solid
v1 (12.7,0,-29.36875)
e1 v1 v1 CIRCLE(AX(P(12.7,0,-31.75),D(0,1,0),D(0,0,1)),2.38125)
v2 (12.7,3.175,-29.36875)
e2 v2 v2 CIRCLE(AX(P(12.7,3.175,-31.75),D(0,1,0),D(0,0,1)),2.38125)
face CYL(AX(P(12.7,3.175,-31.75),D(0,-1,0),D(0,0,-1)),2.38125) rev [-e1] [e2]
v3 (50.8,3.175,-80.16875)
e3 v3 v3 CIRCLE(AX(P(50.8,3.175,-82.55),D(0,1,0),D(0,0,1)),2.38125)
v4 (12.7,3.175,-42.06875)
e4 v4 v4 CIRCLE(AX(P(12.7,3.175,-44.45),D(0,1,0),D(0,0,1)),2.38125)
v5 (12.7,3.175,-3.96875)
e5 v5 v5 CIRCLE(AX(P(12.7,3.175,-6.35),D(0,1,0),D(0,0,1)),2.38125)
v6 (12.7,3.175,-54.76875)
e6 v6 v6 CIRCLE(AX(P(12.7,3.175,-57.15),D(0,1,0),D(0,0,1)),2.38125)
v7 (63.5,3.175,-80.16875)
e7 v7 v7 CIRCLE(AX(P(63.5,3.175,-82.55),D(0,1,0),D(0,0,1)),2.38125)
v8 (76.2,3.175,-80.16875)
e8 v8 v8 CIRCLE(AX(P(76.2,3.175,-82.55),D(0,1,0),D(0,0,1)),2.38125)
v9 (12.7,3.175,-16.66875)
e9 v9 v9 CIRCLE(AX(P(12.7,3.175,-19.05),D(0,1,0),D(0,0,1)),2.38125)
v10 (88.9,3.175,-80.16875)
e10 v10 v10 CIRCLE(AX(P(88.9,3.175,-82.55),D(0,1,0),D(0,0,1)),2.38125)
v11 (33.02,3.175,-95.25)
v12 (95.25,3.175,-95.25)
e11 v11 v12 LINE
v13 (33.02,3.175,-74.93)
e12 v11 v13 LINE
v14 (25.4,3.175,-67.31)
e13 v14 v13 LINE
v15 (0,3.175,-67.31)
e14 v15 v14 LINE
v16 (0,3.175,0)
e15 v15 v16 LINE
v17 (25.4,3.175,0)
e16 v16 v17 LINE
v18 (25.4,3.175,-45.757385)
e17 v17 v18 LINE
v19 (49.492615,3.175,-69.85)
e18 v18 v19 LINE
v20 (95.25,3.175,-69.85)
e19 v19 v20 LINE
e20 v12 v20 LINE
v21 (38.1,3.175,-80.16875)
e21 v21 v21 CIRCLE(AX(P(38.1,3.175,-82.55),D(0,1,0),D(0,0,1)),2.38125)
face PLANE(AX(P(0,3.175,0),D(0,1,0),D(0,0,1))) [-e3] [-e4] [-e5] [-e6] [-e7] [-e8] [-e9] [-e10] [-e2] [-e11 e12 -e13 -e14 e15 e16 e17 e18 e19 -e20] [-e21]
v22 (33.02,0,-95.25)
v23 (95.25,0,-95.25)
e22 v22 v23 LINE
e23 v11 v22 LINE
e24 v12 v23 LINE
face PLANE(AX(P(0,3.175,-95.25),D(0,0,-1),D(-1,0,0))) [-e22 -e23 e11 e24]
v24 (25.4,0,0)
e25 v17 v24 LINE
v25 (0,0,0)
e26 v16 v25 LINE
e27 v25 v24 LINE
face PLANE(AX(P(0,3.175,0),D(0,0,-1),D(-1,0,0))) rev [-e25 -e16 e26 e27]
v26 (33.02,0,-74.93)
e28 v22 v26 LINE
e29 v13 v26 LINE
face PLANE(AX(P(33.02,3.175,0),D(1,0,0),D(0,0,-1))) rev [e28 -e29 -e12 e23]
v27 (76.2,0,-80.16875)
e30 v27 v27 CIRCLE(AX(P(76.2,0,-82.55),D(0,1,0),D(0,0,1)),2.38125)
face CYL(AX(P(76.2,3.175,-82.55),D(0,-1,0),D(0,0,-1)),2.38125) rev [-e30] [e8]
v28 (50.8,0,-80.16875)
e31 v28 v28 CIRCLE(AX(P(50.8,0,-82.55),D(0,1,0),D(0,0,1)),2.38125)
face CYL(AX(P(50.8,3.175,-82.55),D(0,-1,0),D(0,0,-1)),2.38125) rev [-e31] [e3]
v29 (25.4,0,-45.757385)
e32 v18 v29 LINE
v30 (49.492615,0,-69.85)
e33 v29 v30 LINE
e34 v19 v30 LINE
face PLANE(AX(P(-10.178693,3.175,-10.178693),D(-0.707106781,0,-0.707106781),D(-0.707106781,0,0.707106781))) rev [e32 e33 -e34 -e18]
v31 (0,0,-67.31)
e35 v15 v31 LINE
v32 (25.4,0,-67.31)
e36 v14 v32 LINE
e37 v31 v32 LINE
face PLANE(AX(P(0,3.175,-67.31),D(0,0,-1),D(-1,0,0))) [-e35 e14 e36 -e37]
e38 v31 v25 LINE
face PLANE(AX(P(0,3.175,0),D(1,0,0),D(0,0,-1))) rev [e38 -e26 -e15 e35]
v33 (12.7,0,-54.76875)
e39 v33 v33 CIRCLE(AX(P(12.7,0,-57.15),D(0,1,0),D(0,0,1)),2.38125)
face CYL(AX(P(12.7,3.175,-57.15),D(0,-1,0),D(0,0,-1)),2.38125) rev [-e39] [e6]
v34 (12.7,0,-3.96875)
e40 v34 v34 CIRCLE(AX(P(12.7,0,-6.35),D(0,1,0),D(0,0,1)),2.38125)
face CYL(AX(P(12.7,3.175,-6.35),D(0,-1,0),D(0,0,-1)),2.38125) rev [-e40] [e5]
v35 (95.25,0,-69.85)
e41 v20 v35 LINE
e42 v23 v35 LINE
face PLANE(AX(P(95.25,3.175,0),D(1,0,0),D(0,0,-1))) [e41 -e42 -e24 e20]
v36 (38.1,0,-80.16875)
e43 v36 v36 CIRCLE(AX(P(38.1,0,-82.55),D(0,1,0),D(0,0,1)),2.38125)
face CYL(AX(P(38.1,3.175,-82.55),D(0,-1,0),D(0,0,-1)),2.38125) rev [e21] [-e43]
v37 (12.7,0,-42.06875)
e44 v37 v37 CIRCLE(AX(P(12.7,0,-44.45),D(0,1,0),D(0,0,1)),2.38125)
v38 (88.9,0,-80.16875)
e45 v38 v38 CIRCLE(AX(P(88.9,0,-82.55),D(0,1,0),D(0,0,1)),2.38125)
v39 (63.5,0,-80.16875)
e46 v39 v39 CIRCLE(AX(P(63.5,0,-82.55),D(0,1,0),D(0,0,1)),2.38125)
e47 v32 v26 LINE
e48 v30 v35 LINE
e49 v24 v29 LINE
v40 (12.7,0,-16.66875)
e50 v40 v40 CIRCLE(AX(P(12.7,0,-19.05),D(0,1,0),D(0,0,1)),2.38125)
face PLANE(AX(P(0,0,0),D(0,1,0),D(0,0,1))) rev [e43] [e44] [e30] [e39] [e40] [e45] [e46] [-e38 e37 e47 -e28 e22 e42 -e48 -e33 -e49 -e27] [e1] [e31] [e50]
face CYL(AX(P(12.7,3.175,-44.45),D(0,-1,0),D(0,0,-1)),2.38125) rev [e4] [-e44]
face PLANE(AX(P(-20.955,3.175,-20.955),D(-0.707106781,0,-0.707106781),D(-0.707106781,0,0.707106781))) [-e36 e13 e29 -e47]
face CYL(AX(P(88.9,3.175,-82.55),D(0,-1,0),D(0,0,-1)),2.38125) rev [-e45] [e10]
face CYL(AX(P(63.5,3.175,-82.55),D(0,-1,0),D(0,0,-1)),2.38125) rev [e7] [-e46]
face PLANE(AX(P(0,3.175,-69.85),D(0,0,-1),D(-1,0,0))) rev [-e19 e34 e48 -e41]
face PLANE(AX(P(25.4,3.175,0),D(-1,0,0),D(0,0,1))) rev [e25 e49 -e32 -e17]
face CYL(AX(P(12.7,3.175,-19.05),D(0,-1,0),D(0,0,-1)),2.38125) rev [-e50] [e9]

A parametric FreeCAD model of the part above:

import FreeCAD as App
import Part
import Sketcher

V = App.Vector
Q = App.Units.Quantity

doc = App.newDocument("Part")
body = doc.addObject("PartDesign::Body", "Body")

sketch1 = body.newObject("Sketcher::SketchObject", "Sketch")
sketch1.AttachmentSupport = (doc.getObject("XZ_Plane"), [""])
sketch1.MapMode = "FlatFace"
sketch1.addGeometry([
    Part.LineSegment(V(25.4, -67.3, 0), V(0, -67.3, 0)),
    Part.LineSegment(V(0, -67.3, 0), V(0, 0, 0)),
    Part.LineSegment(V(0, 0, 0), V(25.4, 0, 0)),
    Part.LineSegment(V(25.4, 0, 0), V(25.4, -45.8, 0)),
    Part.LineSegment(V(25.4, -45.8, 0), V(49.5, -69.8, 0)),
    Part.LineSegment(V(49.5, -69.8, 0), V(95.2, -69.8, 0)),
    Part.LineSegment(V(95.2, -69.8, 0), V(95.2, -95.2, 0)),
    Part.LineSegment(V(95.2, -95.2, 0), V(33, -95.2, 0)),
    Part.LineSegment(V(33, -95.2, 0), V(33, -74.9, 0)),
    Part.LineSegment(V(33, -74.9, 0), V(25.4, -67.3, 0)),
    Part.Circle(V(12.7, -6.3, 0), V(0, 0, 1), 2.4),
    Part.Circle(V(12.7, -19.1, 0), V(0, 0, 1), 2.4),
    Part.Circle(V(12.7, -31.8, 0), V(0, 0, 1), 2.4),
    Part.Circle(V(88.9, -82.5, 0), V(0, 0, 1), 2.4),
    Part.Circle(V(76.2, -82.5, 0), V(0, 0, 1), 2.4),
    Part.Circle(V(63.5, -82.5, 0), V(0, 0, 1), 2.4),
    Part.Circle(V(12.7, -44.5, 0), V(0, 0, 1), 2.4),
    Part.Circle(V(12.7, -57.1, 0), V(0, 0, 1), 2.4),
    Part.Circle(V(50.8, -82.5, 0), V(0, 0, 1), 2.4),
    Part.Circle(V(38.1, -82.5, 0), V(0, 0, 1), 2.4),
], False)
sketch1.addConstraint([
    Sketcher.Constraint("Coincident", 0, 2, 1, 1),
    Sketcher.Constraint("Coincident", 1, 2, 2, 1),
    Sketcher.Constraint("Coincident", 2, 2, 3, 1),
    Sketcher.Constraint("Coincident", 3, 2, 4, 1),
    Sketcher.Constraint("Coincident", 4, 2, 5, 1),
    Sketcher.Constraint("Coincident", 5, 2, 6, 1),
    Sketcher.Constraint("Coincident", 6, 2, 7, 1),
    Sketcher.Constraint("Coincident", 7, 2, 8, 1),
    Sketcher.Constraint("Coincident", 8, 2, 9, 1),
    Sketcher.Constraint("Coincident", 9, 2, 0, 1),
    Sketcher.Constraint("Horizontal", 0),
    Sketcher.Constraint("Vertical", 1),
    Sketcher.Constraint("Horizontal", 2),
    Sketcher.Constraint("Vertical", 3),
    Sketcher.Constraint("Horizontal", 5),
    Sketcher.Constraint("Vertical", 6),
    Sketcher.Constraint("Horizontal", 7),
    Sketcher.Constraint("Vertical", 8),
    Sketcher.Constraint("Coincident", 1, 2, -1, 1),
    Sketcher.Constraint("Equal", 10, 11),
    Sketcher.Constraint("Equal", 11, 12),
    Sketcher.Constraint("Equal", 12, 13),
    Sketcher.Constraint("Equal", 13, 14),
    Sketcher.Constraint("Equal", 14, 15),
    Sketcher.Constraint("Equal", 15, 16),
    Sketcher.Constraint("Equal", 16, 17),
    Sketcher.Constraint("Equal", 17, 18),
    Sketcher.Constraint("Equal", 18, 19),
    Sketcher.Constraint("Parallel", 4, 9),
    Sketcher.Constraint("Horizontal", 13, 3, 14, 3),
    Sketcher.Constraint("Horizontal", 14, 3, 15, 3),
    Sketcher.Constraint("Horizontal", 15, 3, 18, 3),
    Sketcher.Constraint("Horizontal", 18, 3, 19, 3),
    Sketcher.Constraint("Vertical", 10, 3, 11, 3),
    Sketcher.Constraint("Vertical", 11, 3, 12, 3),
    Sketcher.Constraint("Vertical", 12, 3, 16, 3),
    Sketcher.Constraint("Vertical", 16, 3, 17, 3),
    Sketcher.Constraint("Vertical", 3, 2, 9, 2),
    Sketcher.Constraint("Equal", 5, 3),
    Sketcher.Constraint("Equal", 2, 6),
    Sketcher.Constraint("DistanceX", 0, 2, 0, 1, Q("1 in")),
    Sketcher.Constraint("Diameter", 10, Q("0.1875 in")),
    Sketcher.Constraint("DistanceY", 8, 1, 8, 2, Q("0.8 in")),
    Sketcher.Constraint("DistanceX", -1, 1, 14, 3, Q("3 in")),
    Sketcher.Constraint("DistanceX", -1, 1, 18, 3, Q("2 in")),
    Sketcher.Constraint("Angle", 4, Q("-45 deg")),
    Sketcher.Constraint("DistanceY", 12, 3, 10, 3, Q("1 in")),
    Sketcher.Constraint("DistanceX", 12, 3, 13, 3, Q("3 in")),
    Sketcher.Constraint("DistanceY", 13, 3, 12, 3, Q("2 in")),
    Sketcher.Constraint("DistanceX", 15, 3, 13, 3, Q("1 in")),
    Sketcher.Constraint("DistanceY", 16, 3, 11, 3, Q("1 in")),
    Sketcher.Constraint("DistanceY", 17, 3, 12, 3, Q("1 in")),
    Sketcher.Constraint("DistanceX", 19, 3, 15, 3, Q("1 in")),
    Sketcher.Constraint("DistanceX", 7, 2, 7, 1, Q("2.45 in")),
    Sketcher.Constraint("DistanceX", -1, 1, 10, 3, Q("0.5 in")),
    Sketcher.Constraint("DistanceX", -1, 1, 7, 2, Q("1.3 in")),
    Sketcher.Constraint("DistanceY", 11, 3, 10, 3, Q("0.5 in")),
    Sketcher.Constraint("DistanceY", 0, 2, 17, 3, Q("0.4 in")),
    Sketcher.Constraint("DistanceX", 5, 1, 5, 2, Q("45.757385 mm")),
])
pad1 = body.newObject("PartDesign::Pad", "Pad")
pad1.Profile = sketch1
pad1.Length = Q("0.125 in")
pad1.Reversed = True

doc.recompute()
